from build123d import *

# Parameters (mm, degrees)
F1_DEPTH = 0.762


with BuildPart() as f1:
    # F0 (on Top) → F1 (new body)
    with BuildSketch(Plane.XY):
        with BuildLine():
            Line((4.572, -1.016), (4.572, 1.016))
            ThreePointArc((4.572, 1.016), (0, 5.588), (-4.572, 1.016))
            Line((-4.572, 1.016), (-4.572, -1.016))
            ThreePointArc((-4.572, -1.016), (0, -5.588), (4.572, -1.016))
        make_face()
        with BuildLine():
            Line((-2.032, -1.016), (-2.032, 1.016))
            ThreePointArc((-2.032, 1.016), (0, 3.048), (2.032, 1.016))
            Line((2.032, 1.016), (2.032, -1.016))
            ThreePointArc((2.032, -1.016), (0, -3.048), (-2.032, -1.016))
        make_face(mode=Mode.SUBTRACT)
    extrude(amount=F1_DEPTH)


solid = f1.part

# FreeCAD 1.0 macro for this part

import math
import FreeCAD as App
import Part
import Sketcher
Q = App.Units.Quantity

doc = App.newDocument("Part")
params = doc.addObject("Spreadsheet::Sheet", "Params")
for row, (alias, value) in enumerate([
    ("sketch1_radius", "0.18 in"),
    ("sketch1_radius2", "0.08 in"),
    ("sketch1_height", "0.08 in"),
    ("pad1_length", "0.03 in"),
], start=1):
    params.set(f"A{row}", alias)
    params.set(f"B{row}", "=" + value)
    params.setAlias(f"B{row}", alias)

body = doc.addObject("PartDesign::Body", "Body")

# Sketch on XY plane
sketch1 = body.newObject("Sketcher::SketchObject", "Sketch")
sketch1.AttachmentSupport = (doc.getObject("XY_Plane"), [""])
sketch1.MapMode = "FlatFace"
sketch1.addGeometry([
    Part.LineSegment(App.Vector(4.572, -1.016, 0), App.Vector(4.572, 1.016, 0)),  # 0
    Part.ArcOfCircle(Part.Circle(App.Vector(0, 1.016, 0), App.Vector(0, 0, 1), 4.572), math.radians(0), math.radians(180)),  # 1
    Part.LineSegment(App.Vector(-4.572, 1.016, 0), App.Vector(-4.572, -1.016, 0)),  # 2
    Part.ArcOfCircle(Part.Circle(App.Vector(0, -1.016, 0), App.Vector(0, 0, 1), 4.572), math.radians(180), math.radians(360)),  # 3
    Part.ArcOfCircle(Part.Circle(App.Vector(0, -1.016, 0), App.Vector(0, 0, 1), 2.032), math.radians(180), math.radians(360)),  # 4
    Part.LineSegment(App.Vector(-2.032, -1.016, 0), App.Vector(-2.032, 1.016, 0)),  # 5
    Part.ArcOfCircle(Part.Circle(App.Vector(0, 1.016, 0), App.Vector(0, 0, 1), 2.032), math.radians(0), math.radians(180)),  # 6
    Part.LineSegment(App.Vector(2.032, 1.016, 0), App.Vector(2.032, -1.016, 0)),  # 7
], False)
sketch1.addConstraint([
    Sketcher.Constraint("Tangent", 0, 2, 1, 1),
    Sketcher.Constraint("Tangent", 1, 2, 2, 1),
    Sketcher.Constraint("Tangent", 2, 2, 3, 1),
    Sketcher.Constraint("Tangent", 3, 2, 0, 1),
    Sketcher.Constraint("Tangent", 4, 1, 5, 1),
    Sketcher.Constraint("Tangent", 5, 2, 6, 2),
    Sketcher.Constraint("Tangent", 6, 1, 7, 1),
    Sketcher.Constraint("Tangent", 7, 2, 4, 2),
    Sketcher.Constraint("Vertical", 0),
    Sketcher.Constraint("Vertical", 2),
    Sketcher.Constraint("Vertical", 5),
    Sketcher.Constraint("Vertical", 7),
    Sketcher.Constraint("Coincident", 4, 3, 3, 3),
    Sketcher.Constraint("Symmetric", 1, 3, 3, 3, -1, 1),
    Sketcher.Constraint("Horizontal", 6, 3, 0, 2),
    Sketcher.Constraint("Radius", 1, Q("0.18 in")),
    Sketcher.Constraint("Radius", 4, Q("0.08 in")),
    Sketcher.Constraint("DistanceY", 0, 1, 0, 2, Q("0.08 in")),
])
sketch1.setExpression("Constraints[15]", "Params.sketch1_radius")
sketch1.setExpression("Constraints[16]", "Params.sketch1_radius2")
sketch1.setExpression("Constraints[17]", "Params.sketch1_height")
pad1 = body.newObject("PartDesign::Pad", "Pad")
pad1.Profile = sketch1
pad1.setExpression("Length", "Params.pad1_length")

doc.recompute()
